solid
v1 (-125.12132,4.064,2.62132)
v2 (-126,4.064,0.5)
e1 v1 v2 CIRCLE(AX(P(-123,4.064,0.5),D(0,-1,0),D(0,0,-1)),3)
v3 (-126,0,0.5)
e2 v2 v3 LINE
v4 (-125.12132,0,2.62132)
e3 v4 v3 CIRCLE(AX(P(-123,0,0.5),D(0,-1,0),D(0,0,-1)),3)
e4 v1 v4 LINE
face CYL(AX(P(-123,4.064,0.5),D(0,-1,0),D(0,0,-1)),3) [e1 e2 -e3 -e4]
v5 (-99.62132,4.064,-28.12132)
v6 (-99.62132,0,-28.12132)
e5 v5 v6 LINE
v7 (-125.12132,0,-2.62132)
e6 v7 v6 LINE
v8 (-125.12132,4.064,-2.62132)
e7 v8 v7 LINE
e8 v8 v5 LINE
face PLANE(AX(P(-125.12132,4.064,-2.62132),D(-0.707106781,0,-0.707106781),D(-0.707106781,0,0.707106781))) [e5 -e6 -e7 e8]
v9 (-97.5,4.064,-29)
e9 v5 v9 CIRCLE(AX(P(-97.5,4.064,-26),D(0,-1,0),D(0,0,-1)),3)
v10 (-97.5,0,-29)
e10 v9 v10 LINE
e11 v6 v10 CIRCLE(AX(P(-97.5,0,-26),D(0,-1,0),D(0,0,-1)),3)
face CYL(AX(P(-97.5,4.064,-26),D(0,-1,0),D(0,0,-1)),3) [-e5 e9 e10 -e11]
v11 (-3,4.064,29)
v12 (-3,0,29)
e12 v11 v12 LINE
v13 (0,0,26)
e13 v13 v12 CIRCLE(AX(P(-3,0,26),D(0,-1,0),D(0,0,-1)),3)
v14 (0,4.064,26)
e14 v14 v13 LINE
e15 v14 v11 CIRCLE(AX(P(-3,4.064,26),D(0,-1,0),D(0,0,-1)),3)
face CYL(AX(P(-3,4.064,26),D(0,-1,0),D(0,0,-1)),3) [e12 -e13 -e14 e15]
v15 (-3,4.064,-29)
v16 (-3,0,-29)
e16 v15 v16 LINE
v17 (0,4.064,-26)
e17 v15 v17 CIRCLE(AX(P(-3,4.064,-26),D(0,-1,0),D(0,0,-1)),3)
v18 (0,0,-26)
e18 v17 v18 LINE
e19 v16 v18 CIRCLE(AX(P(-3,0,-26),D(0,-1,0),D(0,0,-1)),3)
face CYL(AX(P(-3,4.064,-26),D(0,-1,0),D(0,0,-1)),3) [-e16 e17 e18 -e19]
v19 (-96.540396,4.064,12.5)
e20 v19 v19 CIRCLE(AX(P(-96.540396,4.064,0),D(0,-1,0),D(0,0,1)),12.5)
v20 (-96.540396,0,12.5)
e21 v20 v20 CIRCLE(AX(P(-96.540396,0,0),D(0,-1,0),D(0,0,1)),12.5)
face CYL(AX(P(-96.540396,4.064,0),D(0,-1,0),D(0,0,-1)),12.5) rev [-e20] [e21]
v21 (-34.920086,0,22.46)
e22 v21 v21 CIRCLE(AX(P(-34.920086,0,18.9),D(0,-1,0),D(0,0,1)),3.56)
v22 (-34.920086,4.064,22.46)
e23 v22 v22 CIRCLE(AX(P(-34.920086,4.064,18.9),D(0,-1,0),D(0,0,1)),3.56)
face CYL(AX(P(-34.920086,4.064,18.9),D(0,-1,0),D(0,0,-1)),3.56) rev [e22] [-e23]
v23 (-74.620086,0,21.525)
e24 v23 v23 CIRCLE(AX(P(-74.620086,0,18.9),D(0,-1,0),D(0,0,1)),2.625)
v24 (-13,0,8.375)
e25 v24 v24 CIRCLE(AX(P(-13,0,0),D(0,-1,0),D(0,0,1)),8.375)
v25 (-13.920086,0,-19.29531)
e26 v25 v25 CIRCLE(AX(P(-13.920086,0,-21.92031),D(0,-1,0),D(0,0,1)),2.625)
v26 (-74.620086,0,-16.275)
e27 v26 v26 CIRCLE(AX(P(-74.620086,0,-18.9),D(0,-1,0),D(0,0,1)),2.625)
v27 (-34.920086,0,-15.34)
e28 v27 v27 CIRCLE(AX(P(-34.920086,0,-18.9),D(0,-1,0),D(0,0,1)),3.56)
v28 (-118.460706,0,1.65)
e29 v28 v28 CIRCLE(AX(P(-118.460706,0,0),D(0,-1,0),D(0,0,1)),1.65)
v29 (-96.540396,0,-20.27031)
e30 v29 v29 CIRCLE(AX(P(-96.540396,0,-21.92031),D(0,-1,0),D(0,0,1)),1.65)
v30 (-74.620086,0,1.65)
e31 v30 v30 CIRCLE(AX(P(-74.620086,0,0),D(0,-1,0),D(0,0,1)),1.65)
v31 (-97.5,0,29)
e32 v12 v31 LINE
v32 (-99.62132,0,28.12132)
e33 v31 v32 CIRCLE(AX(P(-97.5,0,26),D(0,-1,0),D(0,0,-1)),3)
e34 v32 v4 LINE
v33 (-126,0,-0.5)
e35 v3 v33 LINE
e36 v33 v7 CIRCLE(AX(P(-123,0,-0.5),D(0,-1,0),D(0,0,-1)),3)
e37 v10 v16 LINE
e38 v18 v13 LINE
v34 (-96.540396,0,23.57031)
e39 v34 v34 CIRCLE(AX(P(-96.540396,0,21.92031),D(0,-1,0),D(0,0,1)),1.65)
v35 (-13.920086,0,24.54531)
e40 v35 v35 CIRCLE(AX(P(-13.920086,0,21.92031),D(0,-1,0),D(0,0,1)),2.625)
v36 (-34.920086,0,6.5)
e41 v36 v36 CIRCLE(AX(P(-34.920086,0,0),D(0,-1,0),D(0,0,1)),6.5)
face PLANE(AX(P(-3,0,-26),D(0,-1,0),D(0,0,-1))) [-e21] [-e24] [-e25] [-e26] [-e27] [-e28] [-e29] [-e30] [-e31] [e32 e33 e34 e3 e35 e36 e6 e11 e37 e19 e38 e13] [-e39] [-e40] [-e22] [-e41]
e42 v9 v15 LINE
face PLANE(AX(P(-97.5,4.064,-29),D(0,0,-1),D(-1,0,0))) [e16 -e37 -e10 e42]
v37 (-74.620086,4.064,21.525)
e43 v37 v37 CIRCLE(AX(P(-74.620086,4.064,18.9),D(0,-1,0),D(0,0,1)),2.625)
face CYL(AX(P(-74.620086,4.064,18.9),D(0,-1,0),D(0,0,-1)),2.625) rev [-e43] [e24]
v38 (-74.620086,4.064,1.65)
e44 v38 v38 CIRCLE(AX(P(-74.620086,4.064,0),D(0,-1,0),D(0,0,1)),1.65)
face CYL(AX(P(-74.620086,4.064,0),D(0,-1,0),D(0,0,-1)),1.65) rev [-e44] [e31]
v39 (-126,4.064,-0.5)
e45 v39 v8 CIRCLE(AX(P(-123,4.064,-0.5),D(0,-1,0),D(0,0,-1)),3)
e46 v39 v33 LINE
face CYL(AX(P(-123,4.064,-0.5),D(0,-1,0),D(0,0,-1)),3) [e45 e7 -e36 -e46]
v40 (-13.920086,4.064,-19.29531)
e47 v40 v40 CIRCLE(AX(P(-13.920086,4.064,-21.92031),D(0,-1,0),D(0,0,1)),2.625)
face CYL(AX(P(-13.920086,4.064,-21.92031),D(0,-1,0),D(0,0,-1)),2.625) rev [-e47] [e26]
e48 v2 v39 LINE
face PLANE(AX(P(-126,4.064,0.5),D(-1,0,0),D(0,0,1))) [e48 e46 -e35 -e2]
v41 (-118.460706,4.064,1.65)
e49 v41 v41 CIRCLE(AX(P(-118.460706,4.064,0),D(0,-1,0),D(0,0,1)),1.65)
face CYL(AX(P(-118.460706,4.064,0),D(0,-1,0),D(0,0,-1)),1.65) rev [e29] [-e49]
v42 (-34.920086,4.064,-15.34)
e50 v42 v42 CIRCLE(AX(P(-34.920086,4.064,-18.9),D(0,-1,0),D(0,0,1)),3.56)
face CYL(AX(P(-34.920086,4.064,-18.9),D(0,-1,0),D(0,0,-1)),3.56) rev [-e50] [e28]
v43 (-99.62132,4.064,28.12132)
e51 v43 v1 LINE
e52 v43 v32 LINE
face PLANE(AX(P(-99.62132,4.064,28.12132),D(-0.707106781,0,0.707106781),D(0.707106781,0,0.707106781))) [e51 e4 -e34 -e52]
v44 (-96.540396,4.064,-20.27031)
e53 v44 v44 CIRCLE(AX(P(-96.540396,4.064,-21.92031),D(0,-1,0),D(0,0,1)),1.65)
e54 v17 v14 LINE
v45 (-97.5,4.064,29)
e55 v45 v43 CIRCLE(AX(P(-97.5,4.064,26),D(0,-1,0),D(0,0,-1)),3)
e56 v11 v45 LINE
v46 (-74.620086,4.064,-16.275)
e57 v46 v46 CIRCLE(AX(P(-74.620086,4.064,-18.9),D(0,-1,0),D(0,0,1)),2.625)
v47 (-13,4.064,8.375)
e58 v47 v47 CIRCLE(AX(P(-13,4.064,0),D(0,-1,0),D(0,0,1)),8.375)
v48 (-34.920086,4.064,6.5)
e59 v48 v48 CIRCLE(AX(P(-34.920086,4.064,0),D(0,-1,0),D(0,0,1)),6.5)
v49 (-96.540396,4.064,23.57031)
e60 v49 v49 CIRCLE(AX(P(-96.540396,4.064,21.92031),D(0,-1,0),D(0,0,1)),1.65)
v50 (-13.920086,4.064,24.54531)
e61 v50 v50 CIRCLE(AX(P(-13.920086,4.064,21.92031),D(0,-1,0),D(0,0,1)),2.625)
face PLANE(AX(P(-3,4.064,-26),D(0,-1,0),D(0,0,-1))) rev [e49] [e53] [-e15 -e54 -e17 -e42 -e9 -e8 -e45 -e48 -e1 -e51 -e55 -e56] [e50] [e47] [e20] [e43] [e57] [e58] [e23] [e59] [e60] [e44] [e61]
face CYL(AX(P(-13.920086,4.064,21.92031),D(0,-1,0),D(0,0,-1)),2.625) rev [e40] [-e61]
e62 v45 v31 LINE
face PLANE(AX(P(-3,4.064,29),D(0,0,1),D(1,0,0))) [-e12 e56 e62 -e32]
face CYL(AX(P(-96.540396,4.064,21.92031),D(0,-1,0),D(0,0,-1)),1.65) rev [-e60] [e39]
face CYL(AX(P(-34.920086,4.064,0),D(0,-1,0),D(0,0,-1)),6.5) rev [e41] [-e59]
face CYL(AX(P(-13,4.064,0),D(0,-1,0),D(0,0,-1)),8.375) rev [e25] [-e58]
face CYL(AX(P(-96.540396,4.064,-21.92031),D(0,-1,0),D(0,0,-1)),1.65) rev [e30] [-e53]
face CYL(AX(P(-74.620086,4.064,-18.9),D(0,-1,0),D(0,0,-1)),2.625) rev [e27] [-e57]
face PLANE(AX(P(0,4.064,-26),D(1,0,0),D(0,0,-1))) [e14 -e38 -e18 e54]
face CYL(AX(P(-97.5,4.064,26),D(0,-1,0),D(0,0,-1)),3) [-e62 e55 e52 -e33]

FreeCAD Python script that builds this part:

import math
import FreeCAD as App
import Part
import Sketcher
from FreeCAD import Vector
Q = App.Units.Quantity

doc = App.newDocument("Part")
body = doc.addObject("PartDesign::Body", "Body")

# Sketch on XZ plane
sketch1 = body.newObject("Sketcher::SketchObject", "Sketch")
sketch1.AttachmentSupport = (doc.getObject("XZ_Plane"), [""])
sketch1.MapMode = "FlatFace"
sketch1.addGeometry([
    Part.LineSegment(Vector(0, -26, 0), Vector(0, 26, 0)),  # 0
    Part.ArcOfCircle(Part.Circle(Vector(-3, 26, 0), Vector(0, 0, 1), 3), math.radians(0), math.radians(90)),  # 1
    Part.LineSegment(Vector(-3, 29, 0), Vector(-97.5, 29, 0)),  # 2
    Part.ArcOfCircle(Part.Circle(Vector(-97.5, 26, 0), Vector(0, 0, 1), 3), math.radians(90), math.radians(135)),  # 3
    Part.LineSegment(Vector(-99.62132, 28.12132, 0), Vector(-125.12132, 2.62132, 0)),  # 4
    Part.ArcOfCircle(Part.Circle(Vector(-123, 0.5, 0), Vector(0, 0, 1), 3), math.radians(135), math.radians(180)),  # 5
    Part.LineSegment(Vector(-126, 0.5, 0), Vector(-126, -0.5, 0)),  # 6
    Part.ArcOfCircle(Part.Circle(Vector(-123, -0.5, 0), Vector(0, 0, 1), 3), math.radians(180), math.radians(225)),  # 7
    Part.LineSegment(Vector(-125.12132, -2.62132, 0), Vector(-99.62132, -28.12132, 0)),  # 8
    Part.ArcOfCircle(Part.Circle(Vector(-97.5, -26, 0), Vector(0, 0, 1), 3), math.radians(-135), math.radians(-90)),  # 9
    Part.LineSegment(Vector(-97.5, -29, 0), Vector(-3, -29, 0)),  # 10
    Part.ArcOfCircle(Part.Circle(Vector(-3, -26, 0), Vector(0, 0, 1), 3), math.radians(-90), math.radians(0)),  # 11
    Part.Circle(Vector(-96.540396, -21.92031, 0), Vector(0, 0, 1), 1.65),  # 12
    Part.Circle(Vector(-74.620086, -18.9, 0), Vector(0, 0, 1), 2.625),  # 13
    Part.Circle(Vector(-34.920086, -18.9, 0), Vector(0, 0, 1), 3.56),  # 14
    Part.Circle(Vector(-13.920086, -21.92031, 0), Vector(0, 0, 1), 2.625),  # 15
    Part.Circle(Vector(-118.460706, 0, 0), Vector(0, 0, 1), 1.65),  # 16
    Part.Circle(Vector(-96.540396, 0, 0), Vector(0, 0, 1), 12.5),  # 17
    Part.Circle(Vector(-74.620086, 0, 0), Vector(0, 0, 1), 1.65),  # 18
    Part.Circle(Vector(-96.540396, 21.92031, 0), Vector(0, 0, 1), 1.65),  # 19
    Part.Circle(Vector(-74.620086, 18.9, 0), Vector(0, 0, 1), 2.625),  # 20
    Part.Circle(Vector(-34.920086, 0, 0), Vector(0, 0, 1), 6.5),  # 21
    Part.Circle(Vector(-13, 0, 0), Vector(0, 0, 1), 8.375),  # 22
    Part.Circle(Vector(-34.920086, 18.9, 0), Vector(0, 0, 1), 3.56),  # 23
    Part.Circle(Vector(-13.920086, 21.92031, 0), Vector(0, 0, 1), 2.625),  # 24
], False)
sketch1.addConstraint([
    Sketcher.Constraint("Tangent", 0, 2, 1, 1),
    Sketcher.Constraint("Tangent", 1, 2, 2, 1),
    Sketcher.Constraint("Tangent", 2, 2, 3, 1),
    Sketcher.Constraint("Tangent", 3, 2, 4, 1),
    Sketcher.Constraint("Tangent", 4, 2, 5, 1),
    Sketcher.Constraint("Tangent", 5, 2, 6, 1),
    Sketcher.Constraint("Tangent", 6, 2, 7, 1),
    Sketcher.Constraint("Tangent", 7, 2, 8, 1),
    Sketcher.Constraint("Tangent", 8, 2, 9, 1),
    Sketcher.Constraint("Tangent", 9, 2, 10, 1),
    Sketcher.Constraint("Tangent", 10, 2, 11, 1),
    Sketcher.Constraint("Tangent", 11, 2, 0, 1),
    Sketcher.Constraint("Vertical", 0),
    Sketcher.Constraint("Horizontal", 2),
    Sketcher.Constraint("Vertical", 6),
    Sketcher.Constraint("Horizontal", 10),
    Sketcher.Constraint("Equal", 1, 3),
    Sketcher.Constraint("Equal", 3, 5),
    Sketcher.Constraint("Equal", 5, 7),
    Sketcher.Constraint("Equal", 7, 9),
    Sketcher.Constraint("Equal", 9, 11),
    Sketcher.Constraint("Equal", 13, 15),
    Sketcher.Constraint("Equal", 12, 16),
    Sketcher.Constraint("Equal", 16, 18),
    Sketcher.Constraint("Equal", 18, 19),
    Sketcher.Constraint("Equal", 15, 20),
    Sketcher.Constraint("Equal", 14, 23),
    Sketcher.Constraint("Equal", 20, 24),
    Sketcher.Constraint("Symmetric", 0, 2, 11, 2, -1, 1),
    Sketcher.Constraint("Symmetric", 12, 3, 19, 3, -1),
    Sketcher.Constraint("Symmetric", 13, 3, 20, 3, -1),
    Sketcher.Constraint("Symmetric", 14, 3, 23, 3, -1),
    Sketcher.Constraint("Symmetric", 15, 3, 24, 3, -1),
    Sketcher.Constraint("Symmetric", 4, 2, 7, 2, -1),
    Sketcher.Constraint("PointOnObject", 16, 3, -1),
    Sketcher.Constraint("PointOnObject", 17, 3, -1),
    Sketcher.Constraint("PointOnObject", 18, 3, -1),
    Sketcher.Constraint("PointOnObject", 21, 3, -1),
    Sketcher.Constraint("PointOnObject", 22, 3, -1),
    Sketcher.Constraint("Perpendicular", 4, 8),
    Sketcher.Constraint("Horizontal", 13, 3, 14, 3),
    Sketcher.Constraint("Horizontal", 12, 3, 15, 3),
    Sketcher.Constraint("Vertical", 12, 3, 17, 3),
    Sketcher.Constraint("Vertical", 13, 3, 18, 3),
    Sketcher.Constraint("Vertical", 14, 3, 21, 3),
    Sketcher.Constraint("Diameter", 17, Q("25 mm")),
    Sketcher.Constraint("Diameter", 21, Q("13 mm")),
    Sketcher.Constraint("Radius", 1, Q("3 mm")),
    Sketcher.Constraint("Diameter", 12, Q("3.3 mm")),
    Sketcher.Constraint("Diameter", 13, Q("5.25 mm")),
    Sketcher.Constraint("Diameter", 14, Q("7.12 mm")),
    Sketcher.Constraint("Diameter", 22, Q("16.75 mm")),
    Sketcher.Constraint("DistanceY", 0, 1, 0, 2, Q("52 mm")),
    Sketcher.Constraint("DistanceY", 6, 2, 6, 1, Q("1 mm")),
    Sketcher.Constraint("DistanceX", 2, 2, 2, 1, Q("94.5 mm")),
    Sketcher.Constraint("DistanceX", 22, 3, -1, 1, Q("13 mm")),
    Sketcher.Constraint("DistanceX", 14, 3, 15, 3, Q("21 mm")),
    Sketcher.Constraint("DistanceY", 13, 3, -1, 1, Q("18.9 mm")),
    Sketcher.Constraint("DistanceX", 13, 3, 14, 3, Q("39.7 mm")),
    Sketcher.Constraint("DistanceY", 12, 3, -1, 1, Q("21.92031 mm")),
    Sketcher.Constraint("DistanceX", 12, 3, 13, 3, Q("21.92031 mm")),
    Sketcher.Constraint("DistanceX", 16, 3, 12, 3, Q("21.92031 mm")),
    Sketcher.Constraint("DistanceX", 12, 3, -1, 1, Q("96.540396 mm")),
])
pad1 = body.newObject("PartDesign::Pad", "Pad")
pad1.Profile = sketch1
pad1.Length = 4.064
pad1.Reversed = True

doc.recompute()
